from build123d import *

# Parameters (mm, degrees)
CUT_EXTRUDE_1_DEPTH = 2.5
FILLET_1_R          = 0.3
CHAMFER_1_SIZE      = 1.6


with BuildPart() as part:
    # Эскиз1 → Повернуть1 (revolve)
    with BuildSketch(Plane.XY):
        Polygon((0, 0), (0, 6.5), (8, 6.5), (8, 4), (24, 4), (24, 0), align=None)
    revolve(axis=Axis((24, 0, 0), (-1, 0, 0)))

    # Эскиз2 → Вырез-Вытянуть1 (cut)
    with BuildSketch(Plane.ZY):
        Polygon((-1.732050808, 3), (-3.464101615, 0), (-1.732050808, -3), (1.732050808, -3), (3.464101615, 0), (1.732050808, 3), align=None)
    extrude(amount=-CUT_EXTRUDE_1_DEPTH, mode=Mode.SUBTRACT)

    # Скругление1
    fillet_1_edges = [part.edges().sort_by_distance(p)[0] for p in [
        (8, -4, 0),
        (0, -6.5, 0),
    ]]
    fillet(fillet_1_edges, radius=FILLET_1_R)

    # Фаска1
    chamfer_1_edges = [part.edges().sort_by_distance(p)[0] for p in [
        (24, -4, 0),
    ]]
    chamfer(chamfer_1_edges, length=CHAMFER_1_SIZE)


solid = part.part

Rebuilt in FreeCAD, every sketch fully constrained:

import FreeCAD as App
import Part
import Sketcher
Q = App.Units.Quantity


def edges_at(feature, points):
    """Names of the edges that pass closest to the given points."""
    edges = feature.Shape.Edges
    near = lambda p: min(range(len(edges)), key=lambda i: edges[i].distToShape(Part.Vertex(*p))[0])
    return sorted({f"Edge{near(p) + 1}" for p in points})

doc = App.newDocument("Part")
body = doc.addObject("PartDesign::Body", "Body")

# Sketch on XY plane
sketch1 = body.newObject("Sketcher::SketchObject", "Sketch")
sketch1.AttachmentSupport = (doc.getObject("XY_Plane"), [""])
sketch1.MapMode = "FlatFace"
sketch1.addGeometry([
    Part.LineSegment(App.Vector(0, 6.5, 0), App.Vector(0, 0, 0)),  # 0
    Part.LineSegment(App.Vector(0, 0, 0), App.Vector(24, 0, 0)),  # 1
    Part.LineSegment(App.Vector(24, 0, 0), App.Vector(24, 4, 0)),  # 2
    Part.LineSegment(App.Vector(24, 4, 0), App.Vector(8, 4, 0)),  # 3
    Part.LineSegment(App.Vector(8, 4, 0), App.Vector(8, 6.5, 0)),  # 4
    Part.LineSegment(App.Vector(8, 6.5, 0), App.Vector(0, 6.5, 0)),  # 5
], False)
sketch1.addConstraint([
    Sketcher.Constraint("Coincident", 0, 2, 1, 1),
    Sketcher.Constraint("Coincident", 1, 2, 2, 1),
    Sketcher.Constraint("Coincident", 2, 2, 3, 1),
    Sketcher.Constraint("Coincident", 3, 2, 4, 1),
    Sketcher.Constraint("Coincident", 4, 2, 5, 1),
    Sketcher.Constraint("Coincident", 5, 2, 0, 1),
    Sketcher.Constraint("Vertical", 0),
    Sketcher.Constraint("Horizontal", 1),
    Sketcher.Constraint("Vertical", 2),
    Sketcher.Constraint("Horizontal", 3),
    Sketcher.Constraint("Vertical", 4),
    Sketcher.Constraint("Horizontal", 5),
    Sketcher.Constraint("Coincident", 0, 2, -1, 1),
    Sketcher.Constraint("DistanceX", 1, 1, 1, 2, Q("24 mm")),
    Sketcher.Constraint("DistanceX", 3, 2, 3, 1, Q("16 mm")),
    Sketcher.Constraint("DistanceY", 2, 1, 2, 2, Q("4 mm")),
    Sketcher.Constraint("DistanceY", 0, 2, 0, 1, Q("6.5 mm")),
])
revolution = body.newObject("PartDesign::Revolution", "Revolution")
revolution.Profile = sketch1
revolution.ReferenceAxis = (sketch1, ["H_Axis"])
revolution.Angle = 360

# Sketch on YZ plane
sketch2 = body.newObject("Sketcher::SketchObject", "Sketch001")
sketch2.AttachmentSupport = (doc.getObject("YZ_Plane"), [""])
sketch2.MapMode = "FlatFace"
sketch2.addGeometry([
    Part.LineSegment(App.Vector(3, -1.732051, 0), App.Vector(0, -3.464102, 0)),  # 0
    Part.LineSegment(App.Vector(0, -3.464102, 0), App.Vector(-3, -1.732051, 0)),  # 1
    Part.LineSegment(App.Vector(-3, -1.732051, 0), App.Vector(-3, 1.732051, 0)),  # 2
    Part.LineSegment(App.Vector(-3, 1.732051, 0), App.Vector(0, 3.464102, 0)),  # 3
    Part.LineSegment(App.Vector(0, 3.464102, 0), App.Vector(3, 1.732051, 0)),  # 4
    Part.LineSegment(App.Vector(3, 1.732051, 0), App.Vector(3, -1.732051, 0)),  # 5
], False)
sketch2.addConstraint([
    Sketcher.Constraint("Coincident", 0, 2, 1, 1),
    Sketcher.Constraint("Coincident", 1, 2, 2, 1),
    Sketcher.Constraint("Coincident", 2, 2, 3, 1),
    Sketcher.Constraint("Coincident", 3, 2, 4, 1),
    Sketcher.Constraint("Coincident", 4, 2, 5, 1),
    Sketcher.Constraint("Coincident", 5, 2, 0, 1),
    Sketcher.Constraint("Vertical", 2),
    Sketcher.Constraint("Vertical", 5),
    Sketcher.Constraint("Symmetric", 0, 2, 3, 2, -1, 1),
    Sketcher.Constraint("Symmetric", 1, 2, 4, 2, -1, 1),
    Sketcher.Constraint("PointOnObject", 0, 2, -2),
    Sketcher.Constraint("Parallel", 0, 3),
    Sketcher.Constraint("Horizontal", 2, 2, 4, 2),
    Sketcher.Constraint("Angle", 0, Q("-150 deg")),
    Sketcher.Constraint("DistanceX", 1, 2, -1, 1, Q("3 mm")),
    Sketcher.Constraint("DistanceY", 2, 1, 2, 2, Q("3.464102 mm")),
])
pocket1 = body.newObject("PartDesign::Pocket", "Pocket")
pocket1.Profile = sketch2
pocket1.Length = 2.5
pocket1.Reversed = True
doc.recompute()

fillet = body.newObject("PartDesign::Fillet", "Fillet")
fillet.Base = (pocket1, edges_at(pocket1, [(8, -4, 0), (0, -6.5, 0)]))
fillet.Radius = 0.3
doc.recompute()

chamfer = body.newObject("PartDesign::Chamfer", "Chamfer")
chamfer.Base = (fillet, edges_at(fillet, [(24, -4, 0)]))
chamfer.Size = 1.6

doc.recompute()
